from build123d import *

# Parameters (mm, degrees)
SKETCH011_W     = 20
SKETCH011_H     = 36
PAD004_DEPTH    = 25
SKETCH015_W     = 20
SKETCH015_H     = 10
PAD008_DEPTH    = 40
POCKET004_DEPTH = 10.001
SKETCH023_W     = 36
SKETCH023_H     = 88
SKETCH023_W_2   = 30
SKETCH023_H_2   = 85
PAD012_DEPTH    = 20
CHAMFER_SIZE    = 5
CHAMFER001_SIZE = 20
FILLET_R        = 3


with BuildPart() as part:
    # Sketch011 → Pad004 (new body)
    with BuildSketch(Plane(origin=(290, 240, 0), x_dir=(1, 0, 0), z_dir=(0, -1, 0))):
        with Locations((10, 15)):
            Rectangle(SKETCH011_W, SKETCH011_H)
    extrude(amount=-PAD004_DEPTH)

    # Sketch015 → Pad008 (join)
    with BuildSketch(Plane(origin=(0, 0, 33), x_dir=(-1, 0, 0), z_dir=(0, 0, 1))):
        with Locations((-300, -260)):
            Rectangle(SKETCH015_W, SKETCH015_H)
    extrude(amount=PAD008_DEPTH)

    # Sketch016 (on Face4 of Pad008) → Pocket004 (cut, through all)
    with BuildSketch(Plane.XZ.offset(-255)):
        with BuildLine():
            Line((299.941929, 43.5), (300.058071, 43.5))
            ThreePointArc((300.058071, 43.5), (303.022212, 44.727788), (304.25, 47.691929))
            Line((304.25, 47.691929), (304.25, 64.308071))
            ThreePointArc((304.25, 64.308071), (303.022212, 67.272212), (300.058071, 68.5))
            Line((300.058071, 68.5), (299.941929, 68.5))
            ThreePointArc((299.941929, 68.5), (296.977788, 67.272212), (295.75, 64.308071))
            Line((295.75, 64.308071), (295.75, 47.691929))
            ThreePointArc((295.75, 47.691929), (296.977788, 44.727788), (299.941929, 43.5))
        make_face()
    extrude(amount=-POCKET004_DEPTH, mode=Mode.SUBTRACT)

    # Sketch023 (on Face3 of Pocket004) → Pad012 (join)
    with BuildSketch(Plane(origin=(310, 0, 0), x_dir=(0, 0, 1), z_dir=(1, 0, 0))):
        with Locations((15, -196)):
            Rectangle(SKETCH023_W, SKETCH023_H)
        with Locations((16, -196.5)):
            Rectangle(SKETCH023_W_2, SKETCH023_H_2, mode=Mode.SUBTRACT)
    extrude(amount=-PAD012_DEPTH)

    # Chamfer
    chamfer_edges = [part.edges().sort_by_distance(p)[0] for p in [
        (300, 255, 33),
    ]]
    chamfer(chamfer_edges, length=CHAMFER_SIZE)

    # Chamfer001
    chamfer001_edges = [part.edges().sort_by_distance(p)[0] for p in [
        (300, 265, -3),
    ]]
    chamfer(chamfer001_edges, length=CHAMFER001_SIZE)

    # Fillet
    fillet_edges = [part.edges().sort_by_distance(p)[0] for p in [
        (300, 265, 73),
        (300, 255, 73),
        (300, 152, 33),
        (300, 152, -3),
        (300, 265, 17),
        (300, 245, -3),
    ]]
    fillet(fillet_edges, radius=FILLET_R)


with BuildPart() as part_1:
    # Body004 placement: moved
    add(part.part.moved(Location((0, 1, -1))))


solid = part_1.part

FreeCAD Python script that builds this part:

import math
import FreeCAD as App
import Part
import Sketcher


def edges_at(feature, points):
    """Names of the edges that pass closest to the given points."""
    edges = feature.Shape.Edges
    near = lambda p: min(range(len(edges)), key=lambda i: edges[i].distToShape(Part.Vertex(*p))[0])
    return sorted({f"Edge{near(p) + 1}" for p in points})

doc = App.newDocument("Part")
body = doc.addObject("PartDesign::Body", "Body")

sketch1 = body.newObject("Sketcher::SketchObject", "Sketch")
sketch1.AttachmentSupport = (doc.getObject("XZ_Plane"), [""])
sketch1.MapMode = "FlatFace"
sketch1.AttachmentOffset = App.Placement(App.Vector(0, 0, -240), App.Rotation())
sketch1.addGeometry(Part.LineSegment(App.Vector(290, 33, 0), App.Vector(290, -3, 0)), False)
sketch1.addGeometry(Part.LineSegment(App.Vector(290, -3, 0), App.Vector(310, -3, 0)), False)
sketch1.addGeometry(Part.LineSegment(App.Vector(310, -3, 0), App.Vector(310, 33, 0)), False)
sketch1.addGeometry(Part.LineSegment(App.Vector(310, 33, 0), App.Vector(290, 33, 0)), False)
sketch1.addConstraint(Sketcher.Constraint("Coincident", 0, 2, 1, 1))
sketch1.addConstraint(Sketcher.Constraint("Coincident", 1, 2, 2, 1))
sketch1.addConstraint(Sketcher.Constraint("Coincident", 2, 2, 3, 1))
sketch1.addConstraint(Sketcher.Constraint("Coincident", 3, 2, 0, 1))
sketch1.addConstraint(Sketcher.Constraint("Vertical", 0))
sketch1.addConstraint(Sketcher.Constraint("Horizontal", 1))
sketch1.addConstraint(Sketcher.Constraint("Vertical", 2))
sketch1.addConstraint(Sketcher.Constraint("Horizontal", 3))
sketch1.addConstraint(Sketcher.Constraint("DistanceX", 1, 1, 1, 2, 20.0))
sketch1.addConstraint(Sketcher.Constraint("DistanceY", 0, 2, 0, 1, 36.0))
sketch1.addConstraint(Sketcher.Constraint("DistanceX", -1, 1, 0, 2, 290.0))
sketch1.addConstraint(Sketcher.Constraint("DistanceY", 0, 2, -1, 1, 3.0))
pad1 = body.newObject("PartDesign::Pad", "Pad")
pad1.Profile = sketch1
pad1.Length = 25
pad1.Reversed = True

sketch2 = body.newObject("Sketcher::SketchObject", "Sketch001")
sketch2.AttachmentSupport = (doc.getObject("XY_Plane"), [""])
sketch2.MapMode = "FlatFace"
sketch2.AttachmentOffset = App.Placement(App.Vector(0, 0, 33), App.Rotation())
sketch2.addGeometry(Part.LineSegment(App.Vector(310, 255, 0), App.Vector(310, 265, 0)), False)
sketch2.addGeometry(Part.LineSegment(App.Vector(310, 265, 0), App.Vector(290, 265, 0)), False)
sketch2.addGeometry(Part.LineSegment(App.Vector(290, 265, 0), App.Vector(290, 255, 0)), False)
sketch2.addGeometry(Part.LineSegment(App.Vector(290, 255, 0), App.Vector(310, 255, 0)), False)
sketch2.addConstraint(Sketcher.Constraint("Coincident", 0, 2, 1, 1))
sketch2.addConstraint(Sketcher.Constraint("Coincident", 1, 2, 2, 1))
sketch2.addConstraint(Sketcher.Constraint("Coincident", 2, 2, 3, 1))
sketch2.addConstraint(Sketcher.Constraint("Coincident", 3, 2, 0, 1))
sketch2.addConstraint(Sketcher.Constraint("Vertical", 0))
sketch2.addConstraint(Sketcher.Constraint("Horizontal", 1))
sketch2.addConstraint(Sketcher.Constraint("Vertical", 2))
sketch2.addConstraint(Sketcher.Constraint("Horizontal", 3))
sketch2.addConstraint(Sketcher.Constraint("DistanceX", 1, 2, 1, 1, 20.0))
sketch2.addConstraint(Sketcher.Constraint("DistanceY", 0, 1, 0, 2, 10.0))
sketch2.addConstraint(Sketcher.Constraint("DistanceX", -1, 1, 0, 2, 310.0))
sketch2.addConstraint(Sketcher.Constraint("DistanceY", -1, 1, 0, 2, 265.0))
pad2 = body.newObject("PartDesign::Pad", "Pad001")
pad2.Profile = sketch2
pad2.Length = 40

sketch3 = body.newObject("Sketcher::SketchObject", "Sketch002")
sketch3.AttachmentSupport = (doc.getObject("XZ_Plane"), [""])
sketch3.MapMode = "FlatFace"
sketch3.AttachmentOffset = App.Placement(App.Vector(0, 0, -255), App.Rotation())
sketch3.addGeometry(Part.LineSegment(App.Vector(299.941929, 43.5, 0), App.Vector(300.058071, 43.5, 0)), False)
sketch3.addGeometry(Part.ArcOfCircle(Part.Circle(App.Vector(300.05807, 47.69193, 0), App.Vector(0, 0, 1), 4.19193), math.radians(-89.99998), math.radians(-0.00002)), False)
sketch3.addGeometry(Part.LineSegment(App.Vector(304.25, 47.691929, 0), App.Vector(304.25, 64.308071, 0)), False)
sketch3.addGeometry(Part.ArcOfCircle(Part.Circle(App.Vector(300.05807, 64.30807, 0), App.Vector(0, 0, 1), 4.19193), math.radians(0.00002), math.radians(89.99998)), False)
sketch3.addGeometry(Part.LineSegment(App.Vector(300.058071, 68.5, 0), App.Vector(299.941929, 68.5, 0)), False)
sketch3.addGeometry(Part.ArcOfCircle(Part.Circle(App.Vector(299.94193, 64.30807, 0), App.Vector(0, 0, 1), 4.19193), math.radians(90.00002), math.radians(179.99998)), False)
sketch3.addGeometry(Part.LineSegment(App.Vector(295.75, 64.308071, 0), App.Vector(295.75, 47.691929, 0)), False)
sketch3.addGeometry(Part.ArcOfCircle(Part.Circle(App.Vector(299.94193, 47.69193, 0), App.Vector(0, 0, 1), 4.19193), math.radians(-179.99998), math.radians(-90.00002)), False)
sketch3.addConstraint(Sketcher.Constraint("Tangent", 0, 2, 1, 1))
sketch3.addConstraint(Sketcher.Constraint("Tangent", 1, 2, 2, 1))
sketch3.addConstraint(Sketcher.Constraint("Tangent", 2, 2, 3, 1))
sketch3.addConstraint(Sketcher.Constraint("Tangent", 3, 2, 4, 1))
sketch3.addConstraint(Sketcher.Constraint("Tangent", 4, 2, 5, 1))
sketch3.addConstraint(Sketcher.Constraint("Tangent", 5, 2, 6, 1))
sketch3.addConstraint(Sketcher.Constraint("Tangent", 6, 2, 7, 1))
sketch3.addConstraint(Sketcher.Constraint("Tangent", 7, 2, 0, 1))
sketch3.addConstraint(Sketcher.Constraint("Horizontal", 0))
sketch3.addConstraint(Sketcher.Constraint("Vertical", 2))
sketch3.addConstraint(Sketcher.Constraint("Horizontal", 4))
sketch3.addConstraint(Sketcher.Constraint("Vertical", 6))
sketch3.addConstraint(Sketcher.Constraint("Equal", 1, 3))
sketch3.addConstraint(Sketcher.Constraint("Equal", 3, 5))
sketch3.addConstraint(Sketcher.Constraint("Equal", 5, 7))
sketch3.addConstraint(Sketcher.Constraint("DistanceY", -1, 1, 0, 2, 43.5))
sketch3.addConstraint(Sketcher.Constraint("DistanceY", -1, 1, 3, 2, 68.5))
sketch3.addConstraint(Sketcher.Constraint("DistanceX", 5, 2, 2, 2, 8.5))
sketch3.addConstraint(Sketcher.Constraint("DistanceX", -1, 1, 1, 2, 304.25))
sketch3.addConstraint(Sketcher.Constraint("Radius", 1, 4.19193))
pocket1 = body.newObject("PartDesign::Pocket", "Pocket")
pocket1.Profile = sketch3
pocket1.Type = "ThroughAll"

sketch4 = body.newObject("Sketcher::SketchObject", "Sketch003")
sketch4.AttachmentSupport = (doc.getObject("YZ_Plane"), [""])
sketch4.MapMode = "FlatFace"
sketch4.AttachmentOffset = App.Placement(App.Vector(0, 0, 310), App.Rotation())
sketch4.addGeometry(Part.LineSegment(App.Vector(152, -3, 0), App.Vector(240, -3, 0)), False)
sketch4.addGeometry(Part.LineSegment(App.Vector(240, -3, 0), App.Vector(240, 33, 0)), False)
sketch4.addGeometry(Part.LineSegment(App.Vector(240, 33, 0), App.Vector(152, 33, 0)), False)
sketch4.addGeometry(Part.LineSegment(App.Vector(152, 33, 0), App.Vector(152, -3, 0)), False)
sketch4.addGeometry(Part.LineSegment(App.Vector(239, 31, 0), App.Vector(239, 1, 0)), False)
sketch4.addGeometry(Part.LineSegment(App.Vector(239, 1, 0), App.Vector(154, 1, 0)), False)
sketch4.addGeometry(Part.LineSegment(App.Vector(154, 1, 0), App.Vector(154, 31, 0)), False)
sketch4.addGeometry(Part.LineSegment(App.Vector(154, 31, 0), App.Vector(239, 31, 0)), False)
sketch4.addConstraint(Sketcher.Constraint("Coincident", 0, 2, 1, 1))
sketch4.addConstraint(Sketcher.Constraint("Coincident", 1, 2, 2, 1))
sketch4.addConstraint(Sketcher.Constraint("Coincident", 2, 2, 3, 1))
sketch4.addConstraint(Sketcher.Constraint("Coincident", 3, 2, 0, 1))
sketch4.addConstraint(Sketcher.Constraint("Coincident", 4, 2, 5, 1))
sketch4.addConstraint(Sketcher.Constraint("Coincident", 5, 2, 6, 1))
sketch4.addConstraint(Sketcher.Constraint("Coincident", 6, 2, 7, 1))
sketch4.addConstraint(Sketcher.Constraint("Coincident", 7, 2, 4, 1))
sketch4.addConstraint(Sketcher.Constraint("Horizontal", 0))
sketch4.addConstraint(Sketcher.Constraint("Vertical", 1))
sketch4.addConstraint(Sketcher.Constraint("Horizontal", 2))
sketch4.addConstraint(Sketcher.Constraint("Vertical", 3))
sketch4.addConstraint(Sketcher.Constraint("Vertical", 4))
sketch4.addConstraint(Sketcher.Constraint("Horizontal", 5))
sketch4.addConstraint(Sketcher.Constraint("Vertical", 6))
sketch4.addConstraint(Sketcher.Constraint("Horizontal", 7))
sketch4.addConstraint(Sketcher.Constraint("DistanceX", 0, 1, 0, 2, 88.0))
sketch4.addConstraint(Sketcher.Constraint("DistanceX", 5, 2, 5, 1, 85.0))
sketch4.addConstraint(Sketcher.Constraint("DistanceY", 1, 1, 1, 2, 36.0))
sketch4.addConstraint(Sketcher.Constraint("DistanceY", 4, 2, 4, 1, 30.0))
sketch4.addConstraint(Sketcher.Constraint("DistanceX", -1, 1, 0, 2, 240.0))
sketch4.addConstraint(Sketcher.Constraint("DistanceY", 0, 2, -1, 1, 3.0))
sketch4.addConstraint(Sketcher.Constraint("DistanceX", -1, 1, 4, 2, 239.0))
sketch4.addConstraint(Sketcher.Constraint("DistanceY", -1, 1, 4, 2, 1.0))
pad3 = body.newObject("PartDesign::Pad", "Pad002")
pad3.Profile = sketch4
pad3.Length = 20
pad3.Reversed = True
doc.recompute()

chamfer = body.newObject("PartDesign::Chamfer", "Chamfer")
chamfer.Base = (pad3, edges_at(pad3, [(300, 255, 33)]))
chamfer.Size = 5
doc.recompute()

chamfer2 = body.newObject("PartDesign::Chamfer", "Chamfer001")
chamfer2.Base = (chamfer, edges_at(chamfer, [(300, 265, -3)]))
chamfer2.Size = 20
doc.recompute()

fillet = body.newObject("PartDesign::Fillet", "Fillet")
fillet.Base = (chamfer2, edges_at(chamfer2, [
    (300, 265, 73),
    (300, 255, 73),
    (300, 152, 33),
    (300, 152, -3),
    (300, 265, 17),
    (300, 245, -3),
]))
fillet.Radius = 3
body2 = doc.addObject("PartDesign::Body", "Body001")
doc.recompute()

body.Placement = App.Placement(App.Vector(0, 1, -1), App.Rotation(App.Vector(0, 0, 1), 0))
boolean = body2.newObject("PartDesign::Boolean", "Boolean")
boolean.Type = "Fuse"
boolean.addObjects([body])

doc.recompute()
